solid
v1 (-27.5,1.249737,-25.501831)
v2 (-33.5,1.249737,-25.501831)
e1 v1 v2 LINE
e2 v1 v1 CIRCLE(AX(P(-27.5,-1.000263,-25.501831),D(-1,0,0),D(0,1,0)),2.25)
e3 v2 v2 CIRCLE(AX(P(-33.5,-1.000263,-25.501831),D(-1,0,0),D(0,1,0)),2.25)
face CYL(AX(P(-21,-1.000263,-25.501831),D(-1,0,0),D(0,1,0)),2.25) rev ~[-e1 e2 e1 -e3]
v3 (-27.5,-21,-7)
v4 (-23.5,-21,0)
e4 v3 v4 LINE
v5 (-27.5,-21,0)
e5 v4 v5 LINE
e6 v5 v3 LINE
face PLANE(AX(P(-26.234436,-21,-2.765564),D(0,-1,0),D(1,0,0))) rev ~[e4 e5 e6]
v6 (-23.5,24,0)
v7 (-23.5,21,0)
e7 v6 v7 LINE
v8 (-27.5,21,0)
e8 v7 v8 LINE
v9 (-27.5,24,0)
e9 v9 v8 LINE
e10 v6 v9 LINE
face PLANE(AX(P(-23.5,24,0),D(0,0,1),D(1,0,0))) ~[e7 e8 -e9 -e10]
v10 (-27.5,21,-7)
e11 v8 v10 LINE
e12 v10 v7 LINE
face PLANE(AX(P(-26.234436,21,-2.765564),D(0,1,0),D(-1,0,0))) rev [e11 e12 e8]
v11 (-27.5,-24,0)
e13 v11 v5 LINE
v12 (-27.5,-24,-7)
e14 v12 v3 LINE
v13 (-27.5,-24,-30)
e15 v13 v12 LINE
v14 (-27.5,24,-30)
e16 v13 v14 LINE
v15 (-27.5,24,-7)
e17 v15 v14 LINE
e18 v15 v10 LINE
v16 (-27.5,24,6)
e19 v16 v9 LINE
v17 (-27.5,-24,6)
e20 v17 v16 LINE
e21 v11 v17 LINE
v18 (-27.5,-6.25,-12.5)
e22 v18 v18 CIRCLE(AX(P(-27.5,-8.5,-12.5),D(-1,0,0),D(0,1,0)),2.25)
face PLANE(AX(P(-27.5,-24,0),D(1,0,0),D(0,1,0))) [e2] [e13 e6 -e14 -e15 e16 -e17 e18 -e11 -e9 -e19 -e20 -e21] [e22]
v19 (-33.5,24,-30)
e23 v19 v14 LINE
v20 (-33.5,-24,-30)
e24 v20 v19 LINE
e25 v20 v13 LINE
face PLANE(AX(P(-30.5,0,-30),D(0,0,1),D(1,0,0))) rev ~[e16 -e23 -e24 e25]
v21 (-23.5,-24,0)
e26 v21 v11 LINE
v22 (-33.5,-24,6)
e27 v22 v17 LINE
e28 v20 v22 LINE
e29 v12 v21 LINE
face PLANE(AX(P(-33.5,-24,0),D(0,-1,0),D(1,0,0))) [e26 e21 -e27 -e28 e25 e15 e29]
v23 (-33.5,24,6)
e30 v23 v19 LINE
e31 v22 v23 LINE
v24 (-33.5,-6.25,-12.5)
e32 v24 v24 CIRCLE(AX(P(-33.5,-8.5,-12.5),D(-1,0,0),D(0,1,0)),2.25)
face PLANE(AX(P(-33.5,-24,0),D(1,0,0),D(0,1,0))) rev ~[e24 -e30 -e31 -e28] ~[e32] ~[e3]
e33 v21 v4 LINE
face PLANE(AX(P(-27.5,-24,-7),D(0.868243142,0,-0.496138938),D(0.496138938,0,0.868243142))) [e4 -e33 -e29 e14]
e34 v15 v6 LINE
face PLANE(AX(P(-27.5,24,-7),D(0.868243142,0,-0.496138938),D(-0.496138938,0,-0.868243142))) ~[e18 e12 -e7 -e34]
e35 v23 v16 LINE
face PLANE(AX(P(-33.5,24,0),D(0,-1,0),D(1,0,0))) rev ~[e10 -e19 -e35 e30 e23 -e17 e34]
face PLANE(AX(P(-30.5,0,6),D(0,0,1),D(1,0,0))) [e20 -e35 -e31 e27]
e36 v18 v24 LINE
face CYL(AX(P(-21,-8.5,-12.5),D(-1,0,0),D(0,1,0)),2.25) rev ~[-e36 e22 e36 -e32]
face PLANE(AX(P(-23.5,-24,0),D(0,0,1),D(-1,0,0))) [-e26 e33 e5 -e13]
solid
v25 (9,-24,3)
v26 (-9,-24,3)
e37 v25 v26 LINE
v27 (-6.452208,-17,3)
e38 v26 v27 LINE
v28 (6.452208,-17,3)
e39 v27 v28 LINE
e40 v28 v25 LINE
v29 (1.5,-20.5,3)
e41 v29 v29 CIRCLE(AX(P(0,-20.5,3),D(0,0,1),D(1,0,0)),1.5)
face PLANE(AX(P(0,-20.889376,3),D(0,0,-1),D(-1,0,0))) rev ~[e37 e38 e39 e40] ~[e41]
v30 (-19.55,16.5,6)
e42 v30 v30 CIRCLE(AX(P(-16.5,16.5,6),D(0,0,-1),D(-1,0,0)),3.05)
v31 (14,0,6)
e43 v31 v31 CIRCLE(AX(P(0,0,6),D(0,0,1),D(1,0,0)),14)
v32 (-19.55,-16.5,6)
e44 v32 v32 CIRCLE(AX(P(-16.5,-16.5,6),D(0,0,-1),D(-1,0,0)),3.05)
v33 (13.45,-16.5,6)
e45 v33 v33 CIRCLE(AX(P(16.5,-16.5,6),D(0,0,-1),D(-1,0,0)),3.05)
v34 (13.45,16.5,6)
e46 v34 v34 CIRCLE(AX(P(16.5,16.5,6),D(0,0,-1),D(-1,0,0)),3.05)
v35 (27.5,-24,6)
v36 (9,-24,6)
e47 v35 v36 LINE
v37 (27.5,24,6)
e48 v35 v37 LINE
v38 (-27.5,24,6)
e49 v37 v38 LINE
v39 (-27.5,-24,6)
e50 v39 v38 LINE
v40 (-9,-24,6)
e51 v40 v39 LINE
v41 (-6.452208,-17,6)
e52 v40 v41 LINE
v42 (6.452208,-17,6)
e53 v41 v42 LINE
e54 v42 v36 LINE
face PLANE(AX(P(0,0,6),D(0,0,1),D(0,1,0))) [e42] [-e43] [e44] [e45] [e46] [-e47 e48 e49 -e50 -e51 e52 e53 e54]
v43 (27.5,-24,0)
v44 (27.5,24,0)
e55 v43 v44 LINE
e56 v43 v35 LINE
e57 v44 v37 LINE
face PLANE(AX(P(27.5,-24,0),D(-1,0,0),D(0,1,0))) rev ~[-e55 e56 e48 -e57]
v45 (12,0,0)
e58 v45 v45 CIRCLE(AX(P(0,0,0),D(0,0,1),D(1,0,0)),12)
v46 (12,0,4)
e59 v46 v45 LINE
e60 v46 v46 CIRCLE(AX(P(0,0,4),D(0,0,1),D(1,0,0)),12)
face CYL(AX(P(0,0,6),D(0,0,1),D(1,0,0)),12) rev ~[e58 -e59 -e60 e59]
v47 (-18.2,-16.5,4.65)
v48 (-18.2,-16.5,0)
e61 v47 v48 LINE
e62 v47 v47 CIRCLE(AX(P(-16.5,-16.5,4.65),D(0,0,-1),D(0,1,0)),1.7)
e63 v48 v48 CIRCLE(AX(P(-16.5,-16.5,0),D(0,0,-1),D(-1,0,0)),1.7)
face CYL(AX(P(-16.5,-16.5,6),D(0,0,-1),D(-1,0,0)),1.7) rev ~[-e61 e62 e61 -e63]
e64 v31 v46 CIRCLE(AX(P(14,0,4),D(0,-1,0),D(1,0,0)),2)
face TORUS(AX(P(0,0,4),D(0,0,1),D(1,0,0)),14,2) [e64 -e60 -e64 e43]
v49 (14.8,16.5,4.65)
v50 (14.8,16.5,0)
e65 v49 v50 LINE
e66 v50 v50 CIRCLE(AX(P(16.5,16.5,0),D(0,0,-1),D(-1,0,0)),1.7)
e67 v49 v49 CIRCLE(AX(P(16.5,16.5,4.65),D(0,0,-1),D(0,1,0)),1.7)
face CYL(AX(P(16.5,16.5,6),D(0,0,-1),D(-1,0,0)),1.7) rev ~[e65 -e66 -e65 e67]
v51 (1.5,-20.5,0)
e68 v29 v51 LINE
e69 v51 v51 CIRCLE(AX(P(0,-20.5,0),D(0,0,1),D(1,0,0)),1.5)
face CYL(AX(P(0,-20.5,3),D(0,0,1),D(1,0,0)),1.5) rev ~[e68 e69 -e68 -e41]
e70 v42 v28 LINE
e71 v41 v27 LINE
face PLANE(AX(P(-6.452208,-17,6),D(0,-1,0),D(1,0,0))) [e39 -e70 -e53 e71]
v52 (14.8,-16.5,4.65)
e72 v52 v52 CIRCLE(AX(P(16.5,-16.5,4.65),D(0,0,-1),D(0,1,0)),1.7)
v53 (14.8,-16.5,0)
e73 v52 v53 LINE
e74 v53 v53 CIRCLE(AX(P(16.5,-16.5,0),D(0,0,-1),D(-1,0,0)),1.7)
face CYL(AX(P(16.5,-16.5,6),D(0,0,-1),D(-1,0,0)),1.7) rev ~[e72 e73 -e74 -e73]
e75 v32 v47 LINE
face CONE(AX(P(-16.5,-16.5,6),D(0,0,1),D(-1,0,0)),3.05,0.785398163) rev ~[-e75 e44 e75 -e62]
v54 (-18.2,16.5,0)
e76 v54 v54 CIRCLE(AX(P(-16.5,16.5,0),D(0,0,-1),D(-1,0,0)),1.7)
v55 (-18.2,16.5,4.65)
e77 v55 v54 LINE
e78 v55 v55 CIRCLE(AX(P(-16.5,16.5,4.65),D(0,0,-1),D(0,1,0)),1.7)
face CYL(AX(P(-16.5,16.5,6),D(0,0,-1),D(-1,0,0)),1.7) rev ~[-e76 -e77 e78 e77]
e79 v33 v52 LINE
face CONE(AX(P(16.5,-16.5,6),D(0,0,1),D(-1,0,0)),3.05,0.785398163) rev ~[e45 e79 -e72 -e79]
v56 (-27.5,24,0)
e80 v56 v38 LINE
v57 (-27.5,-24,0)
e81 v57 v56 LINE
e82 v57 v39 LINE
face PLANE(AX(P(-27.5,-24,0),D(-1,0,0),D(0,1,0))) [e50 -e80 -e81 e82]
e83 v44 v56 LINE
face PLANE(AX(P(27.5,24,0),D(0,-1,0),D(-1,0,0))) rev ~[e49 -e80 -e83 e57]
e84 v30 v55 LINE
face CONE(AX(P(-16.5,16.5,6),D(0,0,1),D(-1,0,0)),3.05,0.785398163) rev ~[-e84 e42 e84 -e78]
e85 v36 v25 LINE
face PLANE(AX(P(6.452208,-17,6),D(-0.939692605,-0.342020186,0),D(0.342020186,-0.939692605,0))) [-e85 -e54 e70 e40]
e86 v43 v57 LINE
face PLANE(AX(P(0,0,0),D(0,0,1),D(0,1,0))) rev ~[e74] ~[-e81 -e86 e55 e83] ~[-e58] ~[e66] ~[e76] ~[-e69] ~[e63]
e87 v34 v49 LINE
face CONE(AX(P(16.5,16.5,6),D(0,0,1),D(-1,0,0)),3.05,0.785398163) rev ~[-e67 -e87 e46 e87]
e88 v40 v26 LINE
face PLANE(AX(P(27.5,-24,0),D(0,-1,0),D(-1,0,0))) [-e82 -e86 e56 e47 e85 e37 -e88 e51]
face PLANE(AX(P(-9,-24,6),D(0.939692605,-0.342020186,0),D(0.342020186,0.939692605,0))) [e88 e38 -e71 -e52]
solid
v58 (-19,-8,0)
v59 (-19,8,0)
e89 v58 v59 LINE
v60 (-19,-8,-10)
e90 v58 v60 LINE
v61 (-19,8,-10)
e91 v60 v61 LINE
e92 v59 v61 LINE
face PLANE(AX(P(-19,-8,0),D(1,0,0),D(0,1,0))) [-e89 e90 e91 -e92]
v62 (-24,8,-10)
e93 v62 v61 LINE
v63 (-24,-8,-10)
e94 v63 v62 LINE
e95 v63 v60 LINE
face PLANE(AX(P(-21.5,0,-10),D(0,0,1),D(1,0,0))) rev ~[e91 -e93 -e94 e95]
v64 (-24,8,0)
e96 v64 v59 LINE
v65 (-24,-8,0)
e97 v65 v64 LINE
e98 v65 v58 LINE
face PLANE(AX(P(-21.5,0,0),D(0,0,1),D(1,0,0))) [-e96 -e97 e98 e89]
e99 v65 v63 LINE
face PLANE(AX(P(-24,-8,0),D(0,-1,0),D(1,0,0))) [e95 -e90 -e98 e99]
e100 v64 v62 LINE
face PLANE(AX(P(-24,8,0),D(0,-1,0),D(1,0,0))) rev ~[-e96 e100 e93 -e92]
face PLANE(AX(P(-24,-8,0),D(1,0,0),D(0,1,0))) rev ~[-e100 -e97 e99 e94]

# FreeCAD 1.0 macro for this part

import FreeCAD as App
import Part
import Sketcher
Q = App.Units.Quantity


def edges_at(feature, points):
    """Names of the edges that pass closest to the given points."""
    edges = feature.Shape.Edges
    near = lambda p: min(range(len(edges)), key=lambda i: edges[i].distToShape(Part.Vertex(*p))[0])
    return sorted({f"Edge{near(p) + 1}" for p in points})

doc = App.newDocument("Part")
body = doc.addObject("PartDesign::Body", "Body")

sketch1 = body.newObject("Sketcher::SketchObject", "Sketch")
sketch1.AttachmentSupport = (doc.getObject("XY_Plane"), [""])
sketch1.MapMode = "FlatFace"
sketch1.addGeometry(Part.LineSegment(App.Vector(-27.5, -24, 0), App.Vector(27.5, -24, 0)), False)
sketch1.addGeometry(Part.LineSegment(App.Vector(27.5, -24, 0), App.Vector(27.5, 24, 0)), False)
sketch1.addGeometry(Part.LineSegment(App.Vector(27.5, 24, 0), App.Vector(-27.5, 24, 0)), False)
sketch1.addGeometry(Part.LineSegment(App.Vector(-27.5, 24, 0), App.Vector(-27.5, -24, 0)), False)
sketch1.addConstraint(Sketcher.Constraint("Coincident", 0, 2, 1, 1))
sketch1.addConstraint(Sketcher.Constraint("Coincident", 1, 2, 2, 1))
sketch1.addConstraint(Sketcher.Constraint("Coincident", 2, 2, 3, 1))
sketch1.addConstraint(Sketcher.Constraint("Coincident", 3, 2, 0, 1))
sketch1.addConstraint(Sketcher.Constraint("Horizontal", 0))
sketch1.addConstraint(Sketcher.Constraint("Vertical", 1))
sketch1.addConstraint(Sketcher.Constraint("Horizontal", 2))
sketch1.addConstraint(Sketcher.Constraint("Vertical", 3))
sketch1.addConstraint(Sketcher.Constraint("Symmetric", 0, 2, 2, 2, -1, 1))
sketch1.addConstraint(Sketcher.Constraint("DistanceX", 0, 1, 0, 2, 55.0))
sketch1.addConstraint(Sketcher.Constraint("DistanceY", 1, 1, 1, 2, 48.0))
pad1 = body.newObject("PartDesign::Pad", "Pad")
pad1.Profile = sketch1
pad1.Length = 6

sketch2 = body.newObject("Sketcher::SketchObject", "Sketch001")
sketch2.AttachmentSupport = (doc.getObject("XY_Plane"), [""])
sketch2.MapMode = "FlatFace"
sketch2.AttachmentOffset = App.Placement(App.Vector(0, 0, 6), App.Rotation())
sketch2.addGeometry(Part.Circle(App.Vector(-16.5, 16.5, 0), App.Vector(0, 0, 1), 1.7), False)
sketch2.addGeometry(Part.Circle(App.Vector(-16.5, -16.5, 0), App.Vector(0, 0, 1), 1.7), False)
sketch2.addGeometry(Part.Circle(App.Vector(16.5, -16.5, 0), App.Vector(0, 0, 1), 1.7), False)
sketch2.addGeometry(Part.Circle(App.Vector(16.5, 16.5, 0), App.Vector(0, 0, 1), 1.7), False)
sketch2.addConstraint(Sketcher.Constraint("Equal", 0, 1))
sketch2.addConstraint(Sketcher.Constraint("Equal", 1, 2))
sketch2.addConstraint(Sketcher.Constraint("Equal", 2, 3))
sketch2.addConstraint(Sketcher.Constraint("Symmetric", 0, 3, 2, 3, -1, 1))
sketch2.addConstraint(Sketcher.Constraint("Symmetric", 1, 3, 3, 3, -1, 1))
sketch2.addConstraint(Sketcher.Constraint("Symmetric", 1, 3, 2, 3, -2))
sketch2.addConstraint(Sketcher.Constraint("Diameter", 0, 3.4))
sketch2.addConstraint(Sketcher.Constraint("DistanceY", 1, 3, 0, 3, 33.0))
sketch2.addConstraint(Sketcher.Constraint("DistanceX", 1, 3, 2, 3, 33.0))
doc.recompute()
hole = body.newObject("PartDesign::Hole", "Hole")
hole.Profile = sketch2
hole.ThreadType = "None"
hole.Diameter = 3.4
hole.DepthType = "ThroughAll"
hole.HoleCutType = "Countersink"
hole.HoleCutDiameter = 6.1
hole.HoleCutCountersinkAngle = 90

sketch3 = body.newObject("Sketcher::SketchObject", "Sketch002")
sketch3.AttachmentSupport = (doc.getObject("XY_Plane"), [""])
sketch3.MapMode = "FlatFace"
sketch3.AttachmentOffset = App.Placement(App.Vector(0, 0, 6), App.Rotation())
sketch3.addGeometry(Part.Circle(App.Vector(0, 0, 0), App.Vector(0, 0, 1), 12), False)
sketch3.addConstraint(Sketcher.Constraint("Coincident", 0, 3, -1, 1))
sketch3.addConstraint(Sketcher.Constraint("Diameter", 0, 24.0))
pocket1 = body.newObject("PartDesign::Pocket", "Pocket")
pocket1.Profile = sketch3
pocket1.Type = "ThroughAll"
doc.recompute()

fillet = body.newObject("PartDesign::Fillet", "Fillet")
fillet.Base = (pocket1, edges_at(pocket1, [(-12, 0, 6)]))
fillet.Radius = 2

sketch4 = body.newObject("Sketcher::SketchObject", "Sketch003")
sketch4.AttachmentSupport = (doc.getObject("XY_Plane"), [""])
sketch4.MapMode = "FlatFace"
sketch4.AttachmentOffset = App.Placement(App.Vector(0, 0, 6), App.Rotation())
sketch4.addGeometry(Part.LineSegment(App.Vector(-6.452208, -17, 0), App.Vector(-9, -24, 0)), False)
sketch4.addGeometry(Part.LineSegment(App.Vector(-9, -24, 0), App.Vector(9, -24, 0)), False)
sketch4.addGeometry(Part.LineSegment(App.Vector(9, -24, 0), App.Vector(6.452208, -17, 0)), False)
sketch4.addGeometry(Part.LineSegment(App.Vector(6.452208, -17, 0), App.Vector(-6.452208, -17, 0)), False)
sketch4.addConstraint(Sketcher.Constraint("Coincident", 0, 2, 1, 1))
sketch4.addConstraint(Sketcher.Constraint("Coincident", 1, 2, 2, 1))
sketch4.addConstraint(Sketcher.Constraint("Coincident", 2, 2, 3, 1))
sketch4.addConstraint(Sketcher.Constraint("Coincident", 3, 2, 0, 1))
sketch4.addConstraint(Sketcher.Constraint("Horizontal", 1))
sketch4.addConstraint(Sketcher.Constraint("Horizontal", 3))
sketch4.addConstraint(Sketcher.Constraint("Equal", 0, 2))
sketch4.addConstraint(Sketcher.Constraint("DistanceX", 1, 1, 1, 2, 18.0))
sketch4.addConstraint(Sketcher.Constraint("Angle", 0, Q("-110.000003 deg")))
sketch4.addConstraint(Sketcher.Constraint("DistanceX", 0, 2, -1, 1, 9.0))
sketch4.addConstraint(Sketcher.Constraint("DistanceY", 0, 2, -1, 1, 24.0))
sketch4.addConstraint(Sketcher.Constraint("DistanceY", 2, 2, -1, 1, 17.0))
pocket2 = body.newObject("PartDesign::Pocket", "Pocket001")
pocket2.Profile = sketch4
pocket2.Length = 3

sketch5 = body.newObject("Sketcher::SketchObject", "Sketch004")
sketch5.AttachmentSupport = (doc.getObject("XY_Plane"), [""])
sketch5.MapMode = "FlatFace"
sketch5.AttachmentOffset = App.Placement(App.Vector(0, 0, 3), App.Rotation())
sketch5.addGeometry(Part.Circle(App.Vector(0, -20.5, 0), App.Vector(0, 0, 1), 1.5), False)
sketch5.addConstraint(Sketcher.Constraint("PointOnObject", 0, 3, -2))
sketch5.addConstraint(Sketcher.Constraint("Diameter", 0, 3.0))
sketch5.addConstraint(Sketcher.Constraint("DistanceY", 0, 3, -1, 1, 20.5))
pocket3 = body.newObject("PartDesign::Pocket", "Pocket002")
pocket3.Profile = sketch5
pocket3.Type = "ThroughAll"
body2 = doc.addObject("PartDesign::Body", "Body001")

sketch6 = body2.newObject("Sketcher::SketchObject", "Sketch005")
sketch6.AttachmentSupport = (doc.getObject("XY_Plane001"), [""])
sketch6.MapMode = "FlatFace"
sketch6.addGeometry(Part.LineSegment(App.Vector(-33.5, 24, 0), App.Vector(-33.5, -24, 0)), False)
sketch6.addGeometry(Part.LineSegment(App.Vector(-33.5, -24, 0), App.Vector(-27.5, -24, 0)), False)
sketch6.addGeometry(Part.LineSegment(App.Vector(-27.5, -24, 0), App.Vector(-27.5, 24, 0)), False)
sketch6.addGeometry(Part.LineSegment(App.Vector(-27.5, 24, 0), App.Vector(-33.5, 24, 0)), False)
sketch6.addConstraint(Sketcher.Constraint("Coincident", 0, 2, 1, 1))
sketch6.addConstraint(Sketcher.Constraint("Coincident", 1, 2, 2, 1))
sketch6.addConstraint(Sketcher.Constraint("Coincident", 2, 2, 3, 1))
sketch6.addConstraint(Sketcher.Constraint("Coincident", 3, 2, 0, 1))
sketch6.addConstraint(Sketcher.Constraint("Vertical", 0))
sketch6.addConstraint(Sketcher.Constraint("Horizontal", 1))
sketch6.addConstraint(Sketcher.Constraint("Vertical", 2))
sketch6.addConstraint(Sketcher.Constraint("Horizontal", 3))
sketch6.addConstraint(Sketcher.Constraint("DistanceX", 1, 1, 1, 2, 6.0))
sketch6.addConstraint(Sketcher.Constraint("DistanceY", 0, 2, 0, 1, 48.0))
sketch6.addConstraint(Sketcher.Constraint("DistanceY", 0, 2, -1, 1, 24.0))
sketch6.addConstraint(Sketcher.Constraint("DistanceX", 0, 2, -1, 1, 33.5))
pad2 = body2.newObject("PartDesign::Pad", "Pad001")
pad2.Profile = sketch6
pad2.Type = "TwoLengths"
pad2.Length = 6
pad2.Length2 = 30

sketch7 = body2.newObject("Sketcher::SketchObject", "Sketch006")
sketch7.AttachmentSupport = (doc.getObject("XZ_Plane001"), [""])
sketch7.MapMode = "FlatFace"
sketch7.AttachmentOffset = App.Placement(App.Vector(0, 0, 24), App.Rotation())
sketch7.addGeometry(Part.LineSegment(App.Vector(-27.5, 0, 0), App.Vector(-27.5, -7, 0)), False)
sketch7.addGeometry(Part.LineSegment(App.Vector(-27.5, -7, 0), App.Vector(-23.5, 0, 0)), False)
sketch7.addGeometry(Part.LineSegment(App.Vector(-23.5, 0, 0), App.Vector(-27.5, 0, 0)), False)
sketch7.addConstraint(Sketcher.Constraint("Coincident", 0, 2, 1, 1))
sketch7.addConstraint(Sketcher.Constraint("Coincident", 1, 2, 2, 1))
sketch7.addConstraint(Sketcher.Constraint("Coincident", 2, 2, 0, 1))
sketch7.addConstraint(Sketcher.Constraint("Vertical", 0))
sketch7.addConstraint(Sketcher.Constraint("Horizontal", 2))
sketch7.addConstraint(Sketcher.Constraint("PointOnObject", 1, 2, -1))
sketch7.addConstraint(Sketcher.Constraint("DistanceX", 2, 2, 2, 1, 4.0))
sketch7.addConstraint(Sketcher.Constraint("DistanceY", 0, 2, 0, 1, 7.0))
sketch7.addConstraint(Sketcher.Constraint("DistanceX", 0, 2, -1, 1, 27.5))
pad3 = body2.newObject("PartDesign::Pad", "Pad002")
pad3.Profile = sketch7
pad3.Length = 3
pad3.Reversed = True
doc.recompute()

mirrored = body2.newObject("PartDesign::Mirrored", "Mirrored")
mirrored.Originals = [pad3]
mirrored.MirrorPlane = (doc.getObject("XZ_Plane001"), [""])
body2.Tip = mirrored

sketch8 = body2.newObject("Sketcher::SketchObject", "Sketch007")
sketch8.AttachmentSupport = (doc.getObject("YZ_Plane001"), [""])
sketch8.MapMode = "FlatFace"
sketch8.AttachmentOffset = App.Placement(App.Vector(0, 0, -21), App.Rotation())
sketch8.addGeometry(Part.Circle(App.Vector(-1.000263, -25.501831, 0), App.Vector(0, 0, 1), 2.25), False)
sketch8.addGeometry(Part.Circle(App.Vector(-8.5, -12.5, 0), App.Vector(0, 0, 1), 2.25), False)
sketch8.addConstraint(Sketcher.Constraint("Equal", 0, 1))
sketch8.addConstraint(Sketcher.Constraint("Diameter", 0, 4.5))
sketch8.addConstraint(Sketcher.Constraint("DistanceX", 1, 3, -1, 1, 8.5))
sketch8.addConstraint(Sketcher.Constraint("DistanceY", 1, 3, -1, 1, 12.5))
sketch8.addConstraint(Sketcher.Constraint("DistanceY", 0, 3, -1, 1, 25.501831))
sketch8.addConstraint(Sketcher.Constraint("DistanceX", 0, 3, -1, 1, 1.000263))
doc.recompute()
hole2 = body2.newObject("PartDesign::Hole", "Hole001")
hole2.Profile = sketch8
hole2.ThreadType = "None"
hole2.Diameter = 4.5
hole2.DepthType = "Dimension"
hole2.Depth = 25
hole2.DrillPoint = "Flat"
hole2.HoleCutType = "Countersink"
hole2.HoleCutDiameter = 6.1
hole2.HoleCutCountersinkAngle = 90
body3 = doc.addObject("PartDesign::Body", "Body002")

sketch9 = body3.newObject("Sketcher::SketchObject", "Sketch008")
sketch9.AttachmentSupport = (doc.getObject("XY_Plane002"), [""])
sketch9.MapMode = "FlatFace"
sketch9.addGeometry(Part.LineSegment(App.Vector(-24, 8, 0), App.Vector(-24, -8, 0)), False)
sketch9.addGeometry(Part.LineSegment(App.Vector(-24, -8, 0), App.Vector(-19, -8, 0)), False)
sketch9.addGeometry(Part.LineSegment(App.Vector(-19, -8, 0), App.Vector(-19, 8, 0)), False)
sketch9.addGeometry(Part.LineSegment(App.Vector(-19, 8, 0), App.Vector(-24, 8, 0)), False)
sketch9.addConstraint(Sketcher.Constraint("Coincident", 0, 2, 1, 1))
sketch9.addConstraint(Sketcher.Constraint("Coincident", 1, 2, 2, 1))
sketch9.addConstraint(Sketcher.Constraint("Coincident", 2, 2, 3, 1))
sketch9.addConstraint(Sketcher.Constraint("Coincident", 3, 2, 0, 1))
sketch9.addConstraint(Sketcher.Constraint("Vertical", 0))
sketch9.addConstraint(Sketcher.Constraint("Horizontal", 1))
sketch9.addConstraint(Sketcher.Constraint("Vertical", 2))
sketch9.addConstraint(Sketcher.Constraint("Horizontal", 3))
sketch9.addConstraint(Sketcher.Constraint("DistanceX", 1, 1, 1, 2, 5.0))
sketch9.addConstraint(Sketcher.Constraint("DistanceY", 0, 2, 0, 1, 16.0))
sketch9.addConstraint(Sketcher.Constraint("DistanceX", 0, 2, -1, 1, 24.0))
sketch9.addConstraint(Sketcher.Constraint("DistanceY", 0, 2, -1, 1, 8.0))
pad4 = body3.newObject("PartDesign::Pad", "Pad003")
pad4.Profile = sketch9
pad4.Length = 10
pad4.Reversed = True

doc.recompute()
